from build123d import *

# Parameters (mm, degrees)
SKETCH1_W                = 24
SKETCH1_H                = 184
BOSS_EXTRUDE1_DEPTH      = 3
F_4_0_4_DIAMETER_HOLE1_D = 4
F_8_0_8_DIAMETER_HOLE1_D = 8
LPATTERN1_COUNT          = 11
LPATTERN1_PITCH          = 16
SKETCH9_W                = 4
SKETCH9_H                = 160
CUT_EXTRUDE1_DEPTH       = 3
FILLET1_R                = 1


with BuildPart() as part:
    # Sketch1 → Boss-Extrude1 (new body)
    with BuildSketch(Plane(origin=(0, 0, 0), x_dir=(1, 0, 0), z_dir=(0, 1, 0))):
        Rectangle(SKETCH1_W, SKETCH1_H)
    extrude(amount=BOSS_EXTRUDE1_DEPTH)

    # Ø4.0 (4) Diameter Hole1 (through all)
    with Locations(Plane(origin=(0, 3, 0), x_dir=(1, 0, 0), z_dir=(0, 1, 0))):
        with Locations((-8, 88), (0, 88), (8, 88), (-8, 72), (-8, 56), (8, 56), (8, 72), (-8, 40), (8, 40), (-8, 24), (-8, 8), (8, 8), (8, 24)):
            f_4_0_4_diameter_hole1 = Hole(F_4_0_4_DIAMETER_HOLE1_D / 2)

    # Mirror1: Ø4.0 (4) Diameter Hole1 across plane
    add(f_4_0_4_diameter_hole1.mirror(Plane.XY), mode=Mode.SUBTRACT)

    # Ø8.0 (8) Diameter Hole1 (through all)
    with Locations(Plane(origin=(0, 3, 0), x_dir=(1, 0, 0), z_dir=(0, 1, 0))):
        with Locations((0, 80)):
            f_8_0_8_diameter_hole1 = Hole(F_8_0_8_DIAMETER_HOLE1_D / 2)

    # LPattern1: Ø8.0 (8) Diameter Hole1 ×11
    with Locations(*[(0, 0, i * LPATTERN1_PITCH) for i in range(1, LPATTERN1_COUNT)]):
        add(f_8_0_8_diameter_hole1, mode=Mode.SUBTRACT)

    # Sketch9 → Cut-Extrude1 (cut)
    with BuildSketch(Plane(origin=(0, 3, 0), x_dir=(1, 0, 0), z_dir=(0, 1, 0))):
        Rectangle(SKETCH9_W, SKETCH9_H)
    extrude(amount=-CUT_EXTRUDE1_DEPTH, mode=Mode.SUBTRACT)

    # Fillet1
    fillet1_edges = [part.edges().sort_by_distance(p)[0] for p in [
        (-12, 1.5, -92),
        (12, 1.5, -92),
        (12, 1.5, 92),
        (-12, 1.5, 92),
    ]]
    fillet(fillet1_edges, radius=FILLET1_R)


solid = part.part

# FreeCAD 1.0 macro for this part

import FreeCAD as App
import Part
import Sketcher

V = App.Vector


def edges_at(feature, points):
    """Names of the edges that pass closest to the given points."""
    edges = feature.Shape.Edges
    near = lambda p: min(range(len(edges)), key=lambda i: edges[i].distToShape(Part.Vertex(*p))[0])
    return sorted({f"Edge{near(p) + 1}" for p in points})


def add_polygon(sketch, points):
    """Adds a closed chain of lines whose ends are joined by coincident constraints."""
    first, n = sketch.GeometryCount, len(points)
    for a, b in zip(points, points[1:] + points[:1]):
        sketch.addGeometry(Part.LineSegment(App.Vector(*a, 0), App.Vector(*b, 0)), False)
    for i in range(n):
        sketch.addConstraint(Sketcher.Constraint("Coincident", first + i, 2, first + (i + 1) % n, 1))

doc = App.newDocument("Part")
body = doc.addObject("PartDesign::Body", "Body")

# Sketch on XZ plane
sketch1 = doc.addObject("Sketcher::SketchObject", "Sketch")
body.addObject(sketch1)
sketch1.AttachmentSupport = (doc.XZ_Plane, [""])
sketch1.MapMode = "FlatFace"
add_polygon(sketch1, [(-12, -92), (-12, 92), (12, 92), (12, -92)])  # lines 0-3
sketch1.addConstraint([
    Sketcher.Constraint("Vertical", 0),
    Sketcher.Constraint("Horizontal", 1),
    Sketcher.Constraint("Vertical", 2),
    Sketcher.Constraint("Horizontal", 3),
    Sketcher.Constraint("Symmetric", 0, 2, 2, 2, -1, 1),
    Sketcher.Constraint("DistanceX", 1, 1, 1, 2, 24.0),
    Sketcher.Constraint("DistanceY", 0, 1, 0, 2, 184.0),
])
pad1 = doc.addObject("PartDesign::Pad", "Pad")
body.addObject(pad1)
pad1.Profile = sketch1
pad1.Length = 3
pad1.Reversed = True

# Sketch on XZ plane
sketch2 = doc.addObject("Sketcher::SketchObject", "Sketch001")
body.addObject(sketch2)
sketch2.AttachmentSupport = (doc.XZ_Plane, [""])
sketch2.MapMode = "FlatFace"
sketch2.AttachmentOffset = App.Placement(V(0, 0, -3), App.Rotation())
sketch2.addGeometry([
    Part.Circle(V(-8, -88, 0), V(0, 0, 1), 2),  # 0
    Part.Circle(V(0, -88, 0), V(0, 0, 1), 2),  # 1
    Part.Circle(V(8, -88, 0), V(0, 0, 1), 2),  # 2
    Part.Circle(V(-8, -72, 0), V(0, 0, 1), 2),  # 3
    Part.Circle(V(-8, -56, 0), V(0, 0, 1), 2),  # 4
    Part.Circle(V(8, -56, 0), V(0, 0, 1), 2),  # 5
    Part.Circle(V(8, -72, 0), V(0, 0, 1), 2),  # 6
    Part.Circle(V(-8, -40, 0), V(0, 0, 1), 2),  # 7
    Part.Circle(V(8, -40, 0), V(0, 0, 1), 2),  # 8
    Part.Circle(V(-8, -24, 0), V(0, 0, 1), 2),  # 9
    Part.Circle(V(-8, -8, 0), V(0, 0, 1), 2),  # 10
    Part.Circle(V(8, -8, 0), V(0, 0, 1), 2),  # 11
    Part.Circle(V(8, -24, 0), V(0, 0, 1), 2),  # 12
], False)
sketch2.addConstraint([
    Sketcher.Constraint("Equal", 0, 1),
    Sketcher.Constraint("Equal", 1, 2),
    Sketcher.Constraint("Equal", 2, 3),
    Sketcher.Constraint("Equal", 3, 4),
    Sketcher.Constraint("Equal", 4, 5),
    Sketcher.Constraint("Equal", 5, 6),
    Sketcher.Constraint("Equal", 6, 7),
    Sketcher.Constraint("Equal", 7, 8),
    Sketcher.Constraint("Equal", 8, 9),
    Sketcher.Constraint("Equal", 9, 10),
    Sketcher.Constraint("Equal", 10, 11),
    Sketcher.Constraint("Equal", 11, 12),
    Sketcher.Constraint("Symmetric", 0, 3, 2, 3, -2),
    Sketcher.Constraint("Symmetric", 4, 3, 5, 3, -2),
    Sketcher.Constraint("Symmetric", 3, 3, 6, 3, -2),
    Sketcher.Constraint("Symmetric", 7, 3, 8, 3, -2),
    Sketcher.Constraint("Symmetric", 10, 3, 11, 3, -2),
    Sketcher.Constraint("Symmetric", 9, 3, 12, 3, -2),
    Sketcher.Constraint("PointOnObject", 1, 3, -2),
    Sketcher.Constraint("Horizontal", 0, 3, 1, 3),
    Sketcher.Constraint("Vertical", 0, 3, 3, 3),
    Sketcher.Constraint("Vertical", 3, 3, 4, 3),
    Sketcher.Constraint("Vertical", 4, 3, 7, 3),
    Sketcher.Constraint("Vertical", 7, 3, 9, 3),
    Sketcher.Constraint("Vertical", 9, 3, 10, 3),
    Sketcher.Constraint("Diameter", 0, 4.0),
    Sketcher.Constraint("DistanceX", 0, 3, -1, 1, 8.0),
    Sketcher.Constraint("DistanceY", 0, 3, -1, 1, 88.0),
    Sketcher.Constraint("DistanceY", 3, 3, -1, 1, 72.0),
    Sketcher.Constraint("DistanceY", 4, 3, -1, 1, 56.0),
    Sketcher.Constraint("DistanceY", 7, 3, -1, 1, 40.0),
    Sketcher.Constraint("DistanceY", 9, 3, -1, 1, 24.0),
    Sketcher.Constraint("DistanceY", 10, 3, -1, 1, 8.0),
])
doc.recompute()
hole = doc.addObject("PartDesign::Hole", "Hole")
body.addObject(hole)
hole.Profile = sketch2
hole.ThreadType = "None"
hole.Diameter = 4
hole.DepthType = "ThroughAll"
hole.Reversed = True
doc.recompute()

mirrored = doc.addObject("PartDesign::Mirrored", "Mirrored")
body.addObject(mirrored)
mirrored.Originals = [hole]
mirrored.MirrorPlane = (doc.XY_Plane, [""])
body.Tip = mirrored

# Sketch on XZ plane
sketch3 = doc.addObject("Sketcher::SketchObject", "Sketch002")
body.addObject(sketch3)
sketch3.AttachmentSupport = (doc.XZ_Plane, [""])
sketch3.MapMode = "FlatFace"
sketch3.AttachmentOffset = App.Placement(V(0, 0, -3), App.Rotation())
sketch3.addGeometry(Part.Circle(V(0, -80, 0), V(0, 0, 1), 4), False)
sketch3.addConstraint([
    Sketcher.Constraint("PointOnObject", 0, 3, -2),
    Sketcher.Constraint("Diameter", 0, 8.0),
    Sketcher.Constraint("DistanceY", 0, 3, -1, 1, 80.0),
])
doc.recompute()
hole2 = doc.addObject("PartDesign::Hole", "Hole001")
body.addObject(hole2)
hole2.Profile = sketch3
hole2.ThreadType = "None"
hole2.Diameter = 8
hole2.DepthType = "ThroughAll"
hole2.Reversed = True
doc.recompute()

linearpattern = doc.addObject("PartDesign::LinearPattern", "LinearPattern")
body.addObject(linearpattern)
linearpattern.Originals = [hole2]
linearpattern.Direction = (doc.Z_Axis, [""])
linearpattern.Mode = "offset"
linearpattern.Offset = 16
linearpattern.Occurrences = 11
body.Tip = linearpattern

# Sketch on XZ plane
sketch4 = doc.addObject("Sketcher::SketchObject", "Sketch003")
body.addObject(sketch4)
sketch4.AttachmentSupport = (doc.XZ_Plane, [""])
sketch4.MapMode = "FlatFace"
sketch4.AttachmentOffset = App.Placement(V(0, 0, -3), App.Rotation())
add_polygon(sketch4, [(-2, -80), (-2, 80), (2, 80), (2, -80)])  # lines 0-3
sketch4.addConstraint([
    Sketcher.Constraint("Vertical", 0),
    Sketcher.Constraint("Horizontal", 1),
    Sketcher.Constraint("Vertical", 2),
    Sketcher.Constraint("Horizontal", 3),
    Sketcher.Constraint("Symmetric", 0, 2, 2, 2, -1, 1),
    Sketcher.Constraint("DistanceX", 1, 1, 1, 2, 4.0),
    Sketcher.Constraint("DistanceY", 0, 1, 0, 2, 160.0),
])
pocket1 = doc.addObject("PartDesign::Pocket", "Pocket")
body.addObject(pocket1)
pocket1.Profile = sketch4
pocket1.Length = 3
pocket1.Reversed = True
doc.recompute()

fillet = doc.addObject("PartDesign::Fillet", "Fillet")
body.addObject(fillet)
fillet.Base = (pocket1, edges_at(pocket1, [
    (-12, 1.5, -92),
    (12, 1.5, -92),
    (12, 1.5, 92),
    (-12, 1.5, 92),
]))
fillet.Radius = 1

doc.recompute()
